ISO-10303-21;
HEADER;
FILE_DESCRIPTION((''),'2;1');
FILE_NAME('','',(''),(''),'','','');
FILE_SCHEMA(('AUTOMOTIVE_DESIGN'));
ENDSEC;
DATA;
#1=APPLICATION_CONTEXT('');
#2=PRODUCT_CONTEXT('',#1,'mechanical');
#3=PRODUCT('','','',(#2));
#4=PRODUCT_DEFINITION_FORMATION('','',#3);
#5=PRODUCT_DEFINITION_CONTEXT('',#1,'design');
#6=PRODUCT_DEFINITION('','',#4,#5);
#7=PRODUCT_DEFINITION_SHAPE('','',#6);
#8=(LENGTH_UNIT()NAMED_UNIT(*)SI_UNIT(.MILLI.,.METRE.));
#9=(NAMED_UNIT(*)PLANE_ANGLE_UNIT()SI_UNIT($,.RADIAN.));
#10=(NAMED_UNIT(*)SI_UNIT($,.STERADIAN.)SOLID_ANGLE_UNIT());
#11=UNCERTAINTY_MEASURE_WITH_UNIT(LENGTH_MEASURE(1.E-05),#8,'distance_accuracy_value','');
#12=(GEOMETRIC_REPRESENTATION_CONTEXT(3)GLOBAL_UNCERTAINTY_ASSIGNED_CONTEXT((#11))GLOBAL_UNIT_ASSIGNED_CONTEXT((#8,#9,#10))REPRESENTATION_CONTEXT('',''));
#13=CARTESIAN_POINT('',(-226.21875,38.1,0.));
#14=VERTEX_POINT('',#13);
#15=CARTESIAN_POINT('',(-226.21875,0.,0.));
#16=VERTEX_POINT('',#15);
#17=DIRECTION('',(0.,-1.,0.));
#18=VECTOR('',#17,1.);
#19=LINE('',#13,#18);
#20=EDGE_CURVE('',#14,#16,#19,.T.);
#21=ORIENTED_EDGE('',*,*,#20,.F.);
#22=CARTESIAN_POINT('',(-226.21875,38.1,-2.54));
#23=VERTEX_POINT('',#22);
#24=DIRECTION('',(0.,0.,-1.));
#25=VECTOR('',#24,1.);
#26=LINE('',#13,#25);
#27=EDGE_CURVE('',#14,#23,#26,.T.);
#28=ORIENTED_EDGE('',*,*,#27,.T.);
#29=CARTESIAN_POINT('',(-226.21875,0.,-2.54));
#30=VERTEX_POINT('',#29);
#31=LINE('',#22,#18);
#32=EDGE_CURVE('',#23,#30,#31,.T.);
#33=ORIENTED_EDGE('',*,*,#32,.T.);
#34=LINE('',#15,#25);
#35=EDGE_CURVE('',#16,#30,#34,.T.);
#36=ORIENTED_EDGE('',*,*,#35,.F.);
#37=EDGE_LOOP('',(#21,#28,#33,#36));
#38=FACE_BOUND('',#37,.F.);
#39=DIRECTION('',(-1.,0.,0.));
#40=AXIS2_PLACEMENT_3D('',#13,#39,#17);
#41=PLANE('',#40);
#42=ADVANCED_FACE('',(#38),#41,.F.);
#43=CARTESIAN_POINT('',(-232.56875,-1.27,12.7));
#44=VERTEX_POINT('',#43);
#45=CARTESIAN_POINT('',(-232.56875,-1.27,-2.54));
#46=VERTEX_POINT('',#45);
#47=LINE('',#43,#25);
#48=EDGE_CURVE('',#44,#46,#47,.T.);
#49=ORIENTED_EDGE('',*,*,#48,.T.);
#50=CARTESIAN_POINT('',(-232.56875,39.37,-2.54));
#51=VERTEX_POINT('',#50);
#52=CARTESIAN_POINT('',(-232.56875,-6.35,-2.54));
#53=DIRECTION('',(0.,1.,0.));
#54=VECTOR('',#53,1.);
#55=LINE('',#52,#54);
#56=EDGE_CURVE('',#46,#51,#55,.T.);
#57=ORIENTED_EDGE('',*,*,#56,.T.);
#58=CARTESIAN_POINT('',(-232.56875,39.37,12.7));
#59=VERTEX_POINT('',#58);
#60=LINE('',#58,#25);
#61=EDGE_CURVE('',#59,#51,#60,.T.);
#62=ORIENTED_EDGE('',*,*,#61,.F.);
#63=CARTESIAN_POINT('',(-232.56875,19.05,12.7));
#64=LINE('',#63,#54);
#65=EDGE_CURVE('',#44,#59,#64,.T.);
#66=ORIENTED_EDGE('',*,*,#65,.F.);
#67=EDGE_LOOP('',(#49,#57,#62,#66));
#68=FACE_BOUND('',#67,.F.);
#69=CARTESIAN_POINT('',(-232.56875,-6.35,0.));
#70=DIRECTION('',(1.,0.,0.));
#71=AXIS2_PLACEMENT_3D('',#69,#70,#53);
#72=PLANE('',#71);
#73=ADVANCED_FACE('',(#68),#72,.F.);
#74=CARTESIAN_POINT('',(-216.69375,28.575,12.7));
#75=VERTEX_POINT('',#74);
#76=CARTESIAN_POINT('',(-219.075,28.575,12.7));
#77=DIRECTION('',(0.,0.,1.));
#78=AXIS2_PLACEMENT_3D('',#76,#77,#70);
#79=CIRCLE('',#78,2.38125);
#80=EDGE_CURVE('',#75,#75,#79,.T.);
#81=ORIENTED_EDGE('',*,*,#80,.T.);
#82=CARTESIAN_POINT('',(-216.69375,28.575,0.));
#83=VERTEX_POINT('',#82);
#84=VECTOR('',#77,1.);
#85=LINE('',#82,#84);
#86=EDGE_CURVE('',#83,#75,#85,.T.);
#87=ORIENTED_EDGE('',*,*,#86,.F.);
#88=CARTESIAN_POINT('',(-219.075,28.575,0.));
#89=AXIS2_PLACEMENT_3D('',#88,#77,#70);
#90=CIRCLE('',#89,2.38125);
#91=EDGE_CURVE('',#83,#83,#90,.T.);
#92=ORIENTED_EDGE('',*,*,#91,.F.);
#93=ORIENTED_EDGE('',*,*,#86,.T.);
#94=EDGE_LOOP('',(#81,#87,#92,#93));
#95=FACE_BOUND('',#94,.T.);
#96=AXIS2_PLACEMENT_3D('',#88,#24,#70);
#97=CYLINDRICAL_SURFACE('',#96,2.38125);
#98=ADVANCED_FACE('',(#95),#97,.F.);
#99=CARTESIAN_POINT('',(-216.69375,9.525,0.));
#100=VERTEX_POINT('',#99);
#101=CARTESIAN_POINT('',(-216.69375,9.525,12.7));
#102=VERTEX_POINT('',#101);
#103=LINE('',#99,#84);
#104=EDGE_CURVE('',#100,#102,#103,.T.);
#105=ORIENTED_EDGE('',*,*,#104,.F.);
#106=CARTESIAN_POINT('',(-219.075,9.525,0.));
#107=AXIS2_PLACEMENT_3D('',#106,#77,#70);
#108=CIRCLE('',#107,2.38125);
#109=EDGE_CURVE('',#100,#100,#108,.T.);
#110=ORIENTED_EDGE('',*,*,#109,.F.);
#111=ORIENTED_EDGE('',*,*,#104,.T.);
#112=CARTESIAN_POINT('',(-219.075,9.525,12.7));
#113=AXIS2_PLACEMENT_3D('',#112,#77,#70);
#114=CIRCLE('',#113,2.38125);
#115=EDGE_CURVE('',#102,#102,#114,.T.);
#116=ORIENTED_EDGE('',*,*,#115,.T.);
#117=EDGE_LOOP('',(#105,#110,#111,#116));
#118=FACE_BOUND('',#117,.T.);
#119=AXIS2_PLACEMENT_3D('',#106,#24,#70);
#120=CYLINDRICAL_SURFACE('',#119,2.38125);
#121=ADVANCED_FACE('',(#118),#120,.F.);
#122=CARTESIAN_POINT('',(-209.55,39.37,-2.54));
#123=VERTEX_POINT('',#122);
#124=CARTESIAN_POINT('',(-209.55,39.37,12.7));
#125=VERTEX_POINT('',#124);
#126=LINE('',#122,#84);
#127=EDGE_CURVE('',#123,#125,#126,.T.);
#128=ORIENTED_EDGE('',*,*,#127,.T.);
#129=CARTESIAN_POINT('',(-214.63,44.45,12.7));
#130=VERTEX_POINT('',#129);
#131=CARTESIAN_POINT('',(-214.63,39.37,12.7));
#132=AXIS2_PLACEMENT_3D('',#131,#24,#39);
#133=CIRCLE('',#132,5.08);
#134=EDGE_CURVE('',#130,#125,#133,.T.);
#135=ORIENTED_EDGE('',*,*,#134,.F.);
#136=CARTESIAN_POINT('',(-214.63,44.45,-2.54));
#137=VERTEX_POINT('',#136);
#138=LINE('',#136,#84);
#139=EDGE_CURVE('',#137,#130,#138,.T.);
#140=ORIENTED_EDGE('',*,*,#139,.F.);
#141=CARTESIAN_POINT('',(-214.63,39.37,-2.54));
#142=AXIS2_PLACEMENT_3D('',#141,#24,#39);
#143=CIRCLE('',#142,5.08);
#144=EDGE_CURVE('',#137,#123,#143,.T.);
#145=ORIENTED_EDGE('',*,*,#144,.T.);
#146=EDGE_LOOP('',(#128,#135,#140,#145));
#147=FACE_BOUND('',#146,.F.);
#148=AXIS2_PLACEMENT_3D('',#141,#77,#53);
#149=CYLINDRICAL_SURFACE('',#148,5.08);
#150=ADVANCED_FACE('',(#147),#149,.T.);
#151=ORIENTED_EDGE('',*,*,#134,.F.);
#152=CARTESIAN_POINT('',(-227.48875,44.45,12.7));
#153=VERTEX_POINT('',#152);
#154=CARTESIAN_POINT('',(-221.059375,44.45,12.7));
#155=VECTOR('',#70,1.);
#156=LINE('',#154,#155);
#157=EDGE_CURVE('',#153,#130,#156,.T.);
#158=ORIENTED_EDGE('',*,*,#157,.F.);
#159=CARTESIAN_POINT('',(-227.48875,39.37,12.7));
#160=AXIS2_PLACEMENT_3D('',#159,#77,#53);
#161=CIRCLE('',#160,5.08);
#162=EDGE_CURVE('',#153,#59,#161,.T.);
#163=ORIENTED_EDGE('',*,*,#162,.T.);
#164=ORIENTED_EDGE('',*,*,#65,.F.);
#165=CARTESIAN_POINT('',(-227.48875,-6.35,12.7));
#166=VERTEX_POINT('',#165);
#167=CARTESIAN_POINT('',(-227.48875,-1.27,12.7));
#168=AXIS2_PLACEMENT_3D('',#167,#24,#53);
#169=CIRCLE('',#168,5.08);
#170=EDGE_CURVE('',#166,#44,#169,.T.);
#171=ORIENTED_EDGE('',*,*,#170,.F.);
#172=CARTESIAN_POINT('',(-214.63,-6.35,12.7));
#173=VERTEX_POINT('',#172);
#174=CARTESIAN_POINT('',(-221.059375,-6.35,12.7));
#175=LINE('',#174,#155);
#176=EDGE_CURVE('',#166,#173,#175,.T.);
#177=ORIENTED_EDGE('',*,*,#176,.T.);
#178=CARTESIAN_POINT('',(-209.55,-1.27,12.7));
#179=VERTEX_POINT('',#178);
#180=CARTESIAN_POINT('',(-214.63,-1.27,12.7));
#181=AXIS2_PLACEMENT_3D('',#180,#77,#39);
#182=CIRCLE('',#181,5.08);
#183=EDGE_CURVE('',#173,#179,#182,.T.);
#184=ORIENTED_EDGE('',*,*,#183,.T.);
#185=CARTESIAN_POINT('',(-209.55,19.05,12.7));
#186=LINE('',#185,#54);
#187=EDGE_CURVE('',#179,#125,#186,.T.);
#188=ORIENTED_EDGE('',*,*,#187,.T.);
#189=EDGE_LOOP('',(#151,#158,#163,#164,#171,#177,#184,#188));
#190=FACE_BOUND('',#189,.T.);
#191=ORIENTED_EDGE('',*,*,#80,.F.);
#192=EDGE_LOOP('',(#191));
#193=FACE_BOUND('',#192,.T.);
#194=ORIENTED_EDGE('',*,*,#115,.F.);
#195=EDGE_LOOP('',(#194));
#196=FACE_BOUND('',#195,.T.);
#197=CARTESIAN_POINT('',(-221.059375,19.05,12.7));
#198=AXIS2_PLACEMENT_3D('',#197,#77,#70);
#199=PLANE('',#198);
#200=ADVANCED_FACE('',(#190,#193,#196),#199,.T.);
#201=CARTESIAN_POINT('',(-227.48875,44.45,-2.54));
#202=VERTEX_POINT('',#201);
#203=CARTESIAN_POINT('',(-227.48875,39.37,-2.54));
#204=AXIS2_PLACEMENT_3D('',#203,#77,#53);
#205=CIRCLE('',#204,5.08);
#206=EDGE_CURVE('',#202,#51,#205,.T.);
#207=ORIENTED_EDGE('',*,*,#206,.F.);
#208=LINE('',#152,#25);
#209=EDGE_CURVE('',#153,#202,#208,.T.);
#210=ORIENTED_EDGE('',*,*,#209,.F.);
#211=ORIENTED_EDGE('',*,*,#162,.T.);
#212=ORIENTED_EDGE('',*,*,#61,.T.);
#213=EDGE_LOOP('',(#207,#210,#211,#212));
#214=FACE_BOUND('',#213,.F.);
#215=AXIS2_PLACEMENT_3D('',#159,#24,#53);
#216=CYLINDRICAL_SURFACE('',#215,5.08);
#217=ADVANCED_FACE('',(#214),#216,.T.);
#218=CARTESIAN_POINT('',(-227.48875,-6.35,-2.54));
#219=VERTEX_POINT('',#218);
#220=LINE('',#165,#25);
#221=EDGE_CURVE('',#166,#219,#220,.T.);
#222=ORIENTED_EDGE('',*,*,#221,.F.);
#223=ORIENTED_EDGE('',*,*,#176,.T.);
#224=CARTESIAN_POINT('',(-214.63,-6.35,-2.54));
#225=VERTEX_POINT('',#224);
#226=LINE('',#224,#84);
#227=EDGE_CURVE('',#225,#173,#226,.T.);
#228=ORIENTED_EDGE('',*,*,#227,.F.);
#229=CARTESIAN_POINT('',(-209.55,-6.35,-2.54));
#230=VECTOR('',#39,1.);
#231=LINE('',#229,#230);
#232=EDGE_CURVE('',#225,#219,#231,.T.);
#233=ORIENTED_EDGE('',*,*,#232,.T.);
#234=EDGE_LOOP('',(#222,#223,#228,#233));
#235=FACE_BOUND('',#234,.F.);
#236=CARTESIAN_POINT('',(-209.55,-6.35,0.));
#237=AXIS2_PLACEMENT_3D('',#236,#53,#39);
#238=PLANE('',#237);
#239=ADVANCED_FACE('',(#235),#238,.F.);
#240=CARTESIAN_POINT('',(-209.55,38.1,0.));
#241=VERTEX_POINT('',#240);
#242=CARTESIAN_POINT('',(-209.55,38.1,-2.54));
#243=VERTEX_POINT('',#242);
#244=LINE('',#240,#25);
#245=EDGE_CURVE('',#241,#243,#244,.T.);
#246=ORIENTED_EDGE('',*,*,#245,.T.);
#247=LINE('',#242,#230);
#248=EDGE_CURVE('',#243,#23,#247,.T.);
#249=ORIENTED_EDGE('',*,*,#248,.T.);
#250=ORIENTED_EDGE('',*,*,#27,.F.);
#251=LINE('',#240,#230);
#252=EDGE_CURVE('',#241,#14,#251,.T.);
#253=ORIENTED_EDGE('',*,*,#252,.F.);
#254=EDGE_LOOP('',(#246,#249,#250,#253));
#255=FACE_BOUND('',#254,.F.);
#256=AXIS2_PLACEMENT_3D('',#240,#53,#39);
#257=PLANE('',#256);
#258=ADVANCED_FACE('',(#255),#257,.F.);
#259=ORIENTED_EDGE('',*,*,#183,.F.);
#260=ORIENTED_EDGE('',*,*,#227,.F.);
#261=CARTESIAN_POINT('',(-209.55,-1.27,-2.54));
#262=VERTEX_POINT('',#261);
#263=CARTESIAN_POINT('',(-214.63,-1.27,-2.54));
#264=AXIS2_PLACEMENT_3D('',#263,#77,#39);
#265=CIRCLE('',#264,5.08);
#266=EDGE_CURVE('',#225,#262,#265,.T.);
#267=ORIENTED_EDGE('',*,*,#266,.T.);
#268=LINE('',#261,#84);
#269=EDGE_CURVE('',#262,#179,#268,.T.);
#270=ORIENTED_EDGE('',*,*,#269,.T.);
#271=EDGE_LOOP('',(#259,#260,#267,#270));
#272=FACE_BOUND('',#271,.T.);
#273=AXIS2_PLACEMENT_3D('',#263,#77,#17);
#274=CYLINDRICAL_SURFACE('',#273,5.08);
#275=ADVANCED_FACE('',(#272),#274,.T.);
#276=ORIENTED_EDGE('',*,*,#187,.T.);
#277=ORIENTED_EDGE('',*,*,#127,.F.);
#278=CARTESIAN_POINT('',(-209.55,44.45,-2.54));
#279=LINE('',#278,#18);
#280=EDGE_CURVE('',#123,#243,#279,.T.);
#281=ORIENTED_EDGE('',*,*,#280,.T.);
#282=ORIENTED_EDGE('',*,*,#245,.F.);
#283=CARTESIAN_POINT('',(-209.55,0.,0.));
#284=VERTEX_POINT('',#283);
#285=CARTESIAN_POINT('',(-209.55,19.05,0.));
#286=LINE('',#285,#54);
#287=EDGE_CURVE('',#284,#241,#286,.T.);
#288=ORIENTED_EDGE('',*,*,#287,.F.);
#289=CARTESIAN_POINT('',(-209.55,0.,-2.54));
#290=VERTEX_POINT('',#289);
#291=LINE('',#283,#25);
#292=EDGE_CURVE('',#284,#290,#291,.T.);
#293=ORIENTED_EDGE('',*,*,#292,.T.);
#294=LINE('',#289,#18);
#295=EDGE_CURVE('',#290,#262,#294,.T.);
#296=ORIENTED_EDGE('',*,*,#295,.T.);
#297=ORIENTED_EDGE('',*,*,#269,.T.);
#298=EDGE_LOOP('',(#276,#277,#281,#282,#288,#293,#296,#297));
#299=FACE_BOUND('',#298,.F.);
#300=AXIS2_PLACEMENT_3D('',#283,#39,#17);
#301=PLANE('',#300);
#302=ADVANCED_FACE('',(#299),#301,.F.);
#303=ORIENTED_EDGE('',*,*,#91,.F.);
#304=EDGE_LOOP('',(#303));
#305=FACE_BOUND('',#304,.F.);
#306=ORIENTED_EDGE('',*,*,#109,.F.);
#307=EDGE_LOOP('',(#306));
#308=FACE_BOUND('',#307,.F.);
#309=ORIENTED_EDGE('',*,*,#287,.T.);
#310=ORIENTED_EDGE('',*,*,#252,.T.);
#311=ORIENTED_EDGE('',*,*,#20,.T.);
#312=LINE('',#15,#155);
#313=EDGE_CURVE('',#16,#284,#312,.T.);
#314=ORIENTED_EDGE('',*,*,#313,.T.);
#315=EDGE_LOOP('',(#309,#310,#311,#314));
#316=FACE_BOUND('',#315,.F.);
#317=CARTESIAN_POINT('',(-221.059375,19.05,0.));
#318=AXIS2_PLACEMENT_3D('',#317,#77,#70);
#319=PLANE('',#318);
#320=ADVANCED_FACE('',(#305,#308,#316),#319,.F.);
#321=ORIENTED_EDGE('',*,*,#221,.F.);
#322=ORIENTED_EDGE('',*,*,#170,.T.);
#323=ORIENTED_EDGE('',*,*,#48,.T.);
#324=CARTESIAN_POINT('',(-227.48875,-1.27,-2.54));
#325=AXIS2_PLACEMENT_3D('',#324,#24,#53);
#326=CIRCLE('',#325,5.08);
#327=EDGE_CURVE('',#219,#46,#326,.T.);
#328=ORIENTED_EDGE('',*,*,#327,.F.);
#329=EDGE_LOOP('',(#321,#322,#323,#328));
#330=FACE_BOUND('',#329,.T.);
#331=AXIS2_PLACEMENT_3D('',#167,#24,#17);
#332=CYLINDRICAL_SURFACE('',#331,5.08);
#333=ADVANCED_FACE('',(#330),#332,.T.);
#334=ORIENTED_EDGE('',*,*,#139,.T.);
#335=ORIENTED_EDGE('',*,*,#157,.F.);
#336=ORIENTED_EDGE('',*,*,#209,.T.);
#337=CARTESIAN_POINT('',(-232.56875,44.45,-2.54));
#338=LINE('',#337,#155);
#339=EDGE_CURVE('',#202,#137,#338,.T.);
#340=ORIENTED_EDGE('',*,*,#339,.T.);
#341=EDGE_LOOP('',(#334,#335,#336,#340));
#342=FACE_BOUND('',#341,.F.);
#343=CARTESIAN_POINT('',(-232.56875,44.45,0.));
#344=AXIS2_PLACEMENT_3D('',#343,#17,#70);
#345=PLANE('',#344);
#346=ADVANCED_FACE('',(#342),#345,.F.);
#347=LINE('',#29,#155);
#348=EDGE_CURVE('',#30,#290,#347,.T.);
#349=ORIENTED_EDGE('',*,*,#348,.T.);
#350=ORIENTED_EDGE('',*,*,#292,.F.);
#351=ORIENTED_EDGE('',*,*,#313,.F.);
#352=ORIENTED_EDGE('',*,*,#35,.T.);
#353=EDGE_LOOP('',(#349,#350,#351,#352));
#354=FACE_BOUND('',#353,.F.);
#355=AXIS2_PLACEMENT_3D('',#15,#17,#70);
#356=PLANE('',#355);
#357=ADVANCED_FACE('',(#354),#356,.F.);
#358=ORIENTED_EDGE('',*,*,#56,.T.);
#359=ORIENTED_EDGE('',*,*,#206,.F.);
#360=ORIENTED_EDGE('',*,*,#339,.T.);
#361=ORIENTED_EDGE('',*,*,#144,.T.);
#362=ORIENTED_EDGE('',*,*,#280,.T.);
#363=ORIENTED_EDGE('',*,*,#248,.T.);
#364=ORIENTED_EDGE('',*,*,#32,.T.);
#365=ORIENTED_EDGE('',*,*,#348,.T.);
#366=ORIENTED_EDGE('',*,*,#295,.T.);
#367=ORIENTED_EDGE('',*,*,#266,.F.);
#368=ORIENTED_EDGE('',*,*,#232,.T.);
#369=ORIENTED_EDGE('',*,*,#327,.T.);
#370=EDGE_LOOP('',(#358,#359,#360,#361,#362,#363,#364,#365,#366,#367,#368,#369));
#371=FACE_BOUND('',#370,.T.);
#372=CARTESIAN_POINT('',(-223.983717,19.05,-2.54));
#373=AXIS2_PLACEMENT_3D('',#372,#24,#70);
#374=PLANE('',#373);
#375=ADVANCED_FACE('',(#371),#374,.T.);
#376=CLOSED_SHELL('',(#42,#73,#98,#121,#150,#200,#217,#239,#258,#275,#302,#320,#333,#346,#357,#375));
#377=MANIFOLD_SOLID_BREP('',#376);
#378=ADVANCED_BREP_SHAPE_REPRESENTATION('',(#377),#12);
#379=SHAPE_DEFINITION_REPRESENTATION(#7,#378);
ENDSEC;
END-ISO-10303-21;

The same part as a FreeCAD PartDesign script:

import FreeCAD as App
import Part
import Sketcher
Q = App.Units.Quantity


def edges_at(feature, points):
    """Names of the edges that pass closest to the given points."""
    edges = feature.Shape.Edges
    near = lambda p: min(range(len(edges)), key=lambda i: edges[i].distToShape(Part.Vertex(*p))[0])
    return sorted({f"Edge{near(p) + 1}" for p in points})


def add_polygon(sketch, points):
    """Adds a closed chain of lines whose ends are joined by coincident constraints."""
    first, n = sketch.GeometryCount, len(points)
    for a, b in zip(points, points[1:] + points[:1]):
        sketch.addGeometry(Part.LineSegment(App.Vector(*a, 0), App.Vector(*b, 0)), False)
    for i in range(n):
        sketch.addConstraint(Sketcher.Constraint("Coincident", first + i, 2, first + (i + 1) % n, 1))

doc = App.newDocument("Part")
params = doc.addObject("Spreadsheet::Sheet", "Params")
for row, (alias, value) in enumerate([
    ("sketch1_height", "2 in"),
    ("sketch1_diameter", "0.1875 in"),
    ("sketch1_width", "0.90625 in"),
    ("pad1_length", "0.5 in"),
    ("sketch2_height", "2 in"),
    ("sketch2_height2", "1.5 in"),
    ("sketch2_width", "0.90625 in"),
    ("sketch2_width2", "0.65625 in"),
    ("pad2_length", "0.1 in"),
    ("fillet_radius", "0.2 in"),
], start=1):
    params.set(f"A{row}", alias)
    params.set(f"B{row}", "=" + value)
    params.setAlias(f"B{row}", alias)

body = doc.addObject("PartDesign::Body", "Body")

sketch1 = body.newObject("Sketcher::SketchObject", "Sketch")
sketch1.AttachmentSupport = (doc.getObject("XY_Plane"), [""])
sketch1.MapMode = "FlatFace"
add_polygon(sketch1, [(-232.56875, 44.45), (-232.56875, -6.35), (-209.55, -6.35), (-209.55, 44.45)])
sketch1.addGeometry(Part.Circle(App.Vector(-219.075, 9.525, 0), App.Vector(0, 0, 1), 2.38125), False)
sketch1.addGeometry(Part.Circle(App.Vector(-219.075, 28.575, 0), App.Vector(0, 0, 1), 2.38125), False)
sketch1.addConstraint([
    Sketcher.Constraint("Vertical", 0),
    Sketcher.Constraint("Horizontal", 1),
    Sketcher.Constraint("Vertical", 2),
    Sketcher.Constraint("Horizontal", 3),
    Sketcher.Constraint("Equal", 4, 5),
    Sketcher.Constraint("Vertical", 4, 3, 5, 3),
    Sketcher.Constraint("DistanceY", 0, 2, 0, 1, Q("2 in")),
    Sketcher.Constraint("Diameter", 4, Q("0.1875 in")),
    Sketcher.Constraint("DistanceX", 1, 1, 1, 2, Q("0.90625 in")),
    Sketcher.Constraint("DistanceY", 0, 2, -1, 1, Q("0.25 in")),
    Sketcher.Constraint("DistanceX", 1, 2, -1, 1, Q("8.25 in")),
    Sketcher.Constraint("DistanceY", 4, 3, 5, 3, Q("0.75 in")),
    Sketcher.Constraint("DistanceX", 4, 3, -1, 1, Q("8.625 in")),
    Sketcher.Constraint("DistanceY", -1, 1, 4, 3, Q("0.375 in")),
])
sketch1.setExpression("Constraints[10]", "Params.sketch1_height")
sketch1.setExpression("Constraints[11]", "Params.sketch1_diameter")
sketch1.setExpression("Constraints[12]", "Params.sketch1_width")
pad1 = body.newObject("PartDesign::Pad", "Pad")
pad1.Profile = sketch1
pad1.setExpression("Length", "Params.pad1_length")

sketch2 = body.newObject("Sketcher::SketchObject", "Sketch001")
sketch2.AttachmentSupport = (doc.getObject("XY_Plane"), [""])
sketch2.MapMode = "FlatFace"
add_polygon(sketch2, [(-209.55, -6.35), (-232.56875, -6.35), (-232.56875, 44.45), (-209.55, 44.45), (-209.55, 38.1), (-226.21875, 38.1), (-226.21875, 0), (-209.55, 0)])
sketch2.addConstraint([
    Sketcher.Constraint("Horizontal", 0),
    Sketcher.Constraint("Vertical", 1),
    Sketcher.Constraint("Horizontal", 2),
    Sketcher.Constraint("Vertical", 3),
    Sketcher.Constraint("Horizontal", 4),
    Sketcher.Constraint("Vertical", 5),
    Sketcher.Constraint("Horizontal", 6),
    Sketcher.Constraint("Vertical", 7),
    Sketcher.Constraint("PointOnObject", 5, 2, -1),
    Sketcher.Constraint("Vertical", 3, 2, 6, 2),
    Sketcher.Constraint("Equal", 3, 7),
    Sketcher.Constraint("DistanceY", 1, 1, 1, 2, Q("2 in")),
    Sketcher.Constraint("DistanceY", 5, 2, 5, 1, Q("1.5 in")),
    Sketcher.Constraint("DistanceX", 0, 2, 0, 1, Q("0.90625 in")),
    Sketcher.Constraint("DistanceX", 4, 2, 4, 1, Q("0.65625 in")),
    Sketcher.Constraint("DistanceX", 2, 2, -1, 1, Q("8.25 in")),
])
sketch2.setExpression("Constraints[19]", "Params.sketch2_height")
sketch2.setExpression("Constraints[20]", "Params.sketch2_height2")
sketch2.setExpression("Constraints[21]", "Params.sketch2_width")
sketch2.setExpression("Constraints[22]", "Params.sketch2_width2")
pad2 = body.newObject("PartDesign::Pad", "Pad001")
pad2.Profile = sketch2
pad2.setExpression("Length", "Params.pad2_length")
pad2.Reversed = True
doc.recompute()

fillet = body.newObject("PartDesign::Fillet", "Fillet")
fillet.Base = (pad2, edges_at(pad2, [
    (-209.55, -6.35, 5.08),
    (-232.569, -6.35, 5.08),
    (-232.569, 44.45, 5.08),
    (-209.55, 44.45, 5.08),
]))
fillet.setExpression("Radius", "Params.fillet_radius")

doc.recompute()
